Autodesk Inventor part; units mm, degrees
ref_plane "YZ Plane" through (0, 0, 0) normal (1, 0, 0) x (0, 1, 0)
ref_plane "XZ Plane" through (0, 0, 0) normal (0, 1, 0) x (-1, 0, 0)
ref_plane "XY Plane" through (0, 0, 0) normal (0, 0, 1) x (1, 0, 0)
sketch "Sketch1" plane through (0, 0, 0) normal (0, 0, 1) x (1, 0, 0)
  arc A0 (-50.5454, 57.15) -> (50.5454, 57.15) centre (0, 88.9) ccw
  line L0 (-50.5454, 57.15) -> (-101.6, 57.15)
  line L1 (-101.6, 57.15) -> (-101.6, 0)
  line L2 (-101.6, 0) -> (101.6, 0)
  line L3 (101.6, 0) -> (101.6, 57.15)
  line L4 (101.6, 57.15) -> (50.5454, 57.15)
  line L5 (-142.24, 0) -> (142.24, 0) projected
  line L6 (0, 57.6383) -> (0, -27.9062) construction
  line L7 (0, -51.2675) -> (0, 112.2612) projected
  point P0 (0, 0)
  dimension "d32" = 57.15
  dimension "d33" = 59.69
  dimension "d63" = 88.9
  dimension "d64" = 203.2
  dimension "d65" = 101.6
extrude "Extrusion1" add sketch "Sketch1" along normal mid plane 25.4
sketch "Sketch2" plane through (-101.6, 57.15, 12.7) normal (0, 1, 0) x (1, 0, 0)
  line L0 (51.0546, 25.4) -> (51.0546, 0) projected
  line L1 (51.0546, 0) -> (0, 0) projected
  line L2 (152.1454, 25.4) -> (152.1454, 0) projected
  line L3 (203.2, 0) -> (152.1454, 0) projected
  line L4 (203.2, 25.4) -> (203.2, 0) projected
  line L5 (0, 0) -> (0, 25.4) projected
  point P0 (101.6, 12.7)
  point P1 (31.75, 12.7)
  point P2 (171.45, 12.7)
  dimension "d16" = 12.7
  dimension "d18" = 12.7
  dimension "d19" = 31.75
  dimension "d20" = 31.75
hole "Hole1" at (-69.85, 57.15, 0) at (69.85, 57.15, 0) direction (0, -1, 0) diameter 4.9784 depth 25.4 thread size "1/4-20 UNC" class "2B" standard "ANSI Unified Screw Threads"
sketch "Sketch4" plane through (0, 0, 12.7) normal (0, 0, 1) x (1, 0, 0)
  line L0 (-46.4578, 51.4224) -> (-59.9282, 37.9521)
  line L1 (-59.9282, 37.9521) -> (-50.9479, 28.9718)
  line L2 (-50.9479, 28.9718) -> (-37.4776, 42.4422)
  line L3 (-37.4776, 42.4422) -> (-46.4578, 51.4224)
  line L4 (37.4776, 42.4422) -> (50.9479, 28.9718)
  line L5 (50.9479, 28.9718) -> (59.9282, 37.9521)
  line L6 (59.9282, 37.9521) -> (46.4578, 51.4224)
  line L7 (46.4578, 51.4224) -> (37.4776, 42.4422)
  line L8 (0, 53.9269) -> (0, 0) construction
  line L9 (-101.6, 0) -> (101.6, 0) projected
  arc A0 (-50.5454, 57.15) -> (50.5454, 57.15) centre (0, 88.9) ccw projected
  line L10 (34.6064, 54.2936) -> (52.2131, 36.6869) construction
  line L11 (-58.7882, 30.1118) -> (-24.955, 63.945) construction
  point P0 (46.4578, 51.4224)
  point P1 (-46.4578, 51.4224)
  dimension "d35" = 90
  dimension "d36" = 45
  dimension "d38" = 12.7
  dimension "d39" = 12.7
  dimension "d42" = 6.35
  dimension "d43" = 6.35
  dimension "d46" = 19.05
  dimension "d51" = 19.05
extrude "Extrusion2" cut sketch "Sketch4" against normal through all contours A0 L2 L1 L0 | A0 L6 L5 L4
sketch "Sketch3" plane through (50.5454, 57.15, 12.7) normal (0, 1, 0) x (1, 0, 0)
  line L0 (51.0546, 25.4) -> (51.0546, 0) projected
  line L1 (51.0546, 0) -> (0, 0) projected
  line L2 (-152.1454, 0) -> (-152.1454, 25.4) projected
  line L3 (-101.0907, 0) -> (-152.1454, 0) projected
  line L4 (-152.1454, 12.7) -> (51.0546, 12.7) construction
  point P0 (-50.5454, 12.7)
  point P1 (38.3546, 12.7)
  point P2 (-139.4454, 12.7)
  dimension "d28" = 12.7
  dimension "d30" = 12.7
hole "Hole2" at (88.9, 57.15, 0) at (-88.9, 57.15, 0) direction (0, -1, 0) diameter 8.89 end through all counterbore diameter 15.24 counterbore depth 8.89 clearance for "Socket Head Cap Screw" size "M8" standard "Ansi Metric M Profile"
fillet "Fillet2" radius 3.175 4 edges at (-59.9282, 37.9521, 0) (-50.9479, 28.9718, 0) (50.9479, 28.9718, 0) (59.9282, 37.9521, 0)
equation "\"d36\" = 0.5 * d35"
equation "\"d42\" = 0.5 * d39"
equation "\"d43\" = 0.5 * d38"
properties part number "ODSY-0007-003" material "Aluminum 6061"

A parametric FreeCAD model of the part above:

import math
import FreeCAD as App
import Part
import Sketcher
from FreeCAD import Vector
Q = App.Units.Quantity


def edges_at(feature, points):
    """Names of the edges that pass closest to the given points."""
    edges = feature.Shape.Edges
    near = lambda p: min(range(len(edges)), key=lambda i: edges[i].distToShape(Part.Vertex(*p))[0])
    return sorted({f"Edge{near(p) + 1}" for p in points})

doc = App.newDocument("Part")
body = doc.addObject("PartDesign::Body", "Body")

sketch1 = body.newObject("Sketcher::SketchObject", "Sketch")
sketch1.AttachmentSupport = (doc.getObject("XY_Plane"), [""])
sketch1.MapMode = "FlatFace"
sketch1.addGeometry([
    Part.LineSegment(Vector(-50.5454, 57.15, 0), Vector(-101.6, 57.15, 0)),
    Part.LineSegment(Vector(-101.6, 57.15, 0), Vector(-101.6, 0, 0)),
    Part.LineSegment(Vector(-101.6, 0, 0), Vector(101.6, 0, 0)),
    Part.LineSegment(Vector(101.6, 0, 0), Vector(101.6, 57.15, 0)),
    Part.LineSegment(Vector(101.6, 57.15, 0), Vector(50.5454, 57.15, 0)),
    Part.ArcOfCircle(Part.Circle(Vector(0, 88.9, 0), Vector(0, 0, 1), 59.690032), math.radians(-147.865091), math.radians(-32.134909)),
], False)
sketch1.addConstraint([
    Sketcher.Constraint("Coincident", 0, 2, 1, 1),
    Sketcher.Constraint("Coincident", 1, 2, 2, 1),
    Sketcher.Constraint("Coincident", 2, 2, 3, 1),
    Sketcher.Constraint("Coincident", 3, 2, 4, 1),
    Sketcher.Constraint("Coincident", 4, 2, 5, 2),
    Sketcher.Constraint("Coincident", 5, 1, 0, 1),
    Sketcher.Constraint("Horizontal", 0),
    Sketcher.Constraint("Vertical", 1),
    Sketcher.Constraint("Horizontal", 2),
    Sketcher.Constraint("Vertical", 3),
    Sketcher.Constraint("Horizontal", 4),
    Sketcher.Constraint("Symmetric", 1, 2, 2, 2, -1, 1),
    Sketcher.Constraint("Symmetric", 4, 2, 5, 1, -2),
    Sketcher.Constraint("DistanceX", 2, 1, 2, 2, Q("8 in")),
    Sketcher.Constraint("Radius", 5, Q("2.35 in")),
    Sketcher.Constraint("DistanceY", 1, 2, 1, 1, Q("2.25 in")),
    Sketcher.Constraint("DistanceY", -1, 1, 5, 3, Q("3.5 in")),
])
pad1 = body.newObject("PartDesign::Pad", "Pad")
pad1.Profile = sketch1
pad1.Length = Q("1 in")
pad1.Midplane = True

sketch2 = body.newObject("Sketcher::SketchObject", "Sketch001")
sketch2.AttachmentSupport = (doc.getObject("XZ_Plane"), [""])
sketch2.MapMode = "FlatFace"
sketch2.AttachmentOffset = App.Placement(Vector(0, 0, -2.25 * 25.4), App.Rotation())
sketch2.addGeometry([
    Part.Circle(Vector(-69.85, 0, 0), Vector(0, 0, 1), 2.4892),
    Part.Circle(Vector(69.85, 0, 0), Vector(0, 0, 1), 2.4892),
], False)
sketch2.addConstraint([
    Sketcher.Constraint("Equal", 0, 1),
    Sketcher.Constraint("Symmetric", 0, 3, 1, 3, -1, 1),
    Sketcher.Constraint("PointOnObject", 0, 3, -1),
    Sketcher.Constraint("Diameter", 0, Q("0.196 in")),
    Sketcher.Constraint("DistanceX", 0, 3, 1, 3, Q("5.5 in")),
])
doc.recompute()
hole = body.newObject("PartDesign::Hole", "Hole")
hole.Profile = sketch2
hole.ThreadType = "None"
hole.Diameter = Q("0.196 in")
hole.DepthType = "Dimension"
hole.Depth = Q("1 in")
hole.DrillPoint = "Flat"
hole.Reversed = True

sketch3 = body.newObject("Sketcher::SketchObject", "Sketch002")
sketch3.AttachmentSupport = (doc.getObject("XY_Plane"), [""])
sketch3.MapMode = "FlatFace"
sketch3.AttachmentOffset = App.Placement(Vector(0, 0, 0.5 * 25.4), App.Rotation())
sketch3.addGeometry([
    Part.ArcOfCircle(Part.Circle(Vector(0, 88.9, 0), Vector(0, 0, 1), 59.690032), math.radians(-141.106812), math.radians(-128.893188)),
    Part.LineSegment(Vector(-46.4578, 51.4224, 0), Vector(-59.9282, 37.9521, 0)),
    Part.LineSegment(Vector(-59.9282, 37.9521, 0), Vector(-50.9479, 28.9718, 0)),
    Part.LineSegment(Vector(-50.9479, 28.9718, 0), Vector(-37.4776, 42.4422, 0)),
    Part.ArcOfCircle(Part.Circle(Vector(0, 88.9, 0), Vector(0, 0, 1), 59.690032), math.radians(-51.106812), math.radians(-38.893188)),
    Part.LineSegment(Vector(37.4776, 42.4422, 0), Vector(50.9479, 28.9718, 0)),
    Part.LineSegment(Vector(50.9479, 28.9718, 0), Vector(59.9282, 37.9521, 0)),
    Part.LineSegment(Vector(59.9282, 37.9521, 0), Vector(46.4578, 51.4224, 0)),
], False)
sketch3.addConstraint([
    Sketcher.Constraint("Coincident", 0, 1, 1, 1),
    Sketcher.Constraint("Coincident", 1, 2, 2, 1),
    Sketcher.Constraint("Coincident", 2, 2, 3, 1),
    Sketcher.Constraint("Coincident", 3, 2, 0, 2),
    Sketcher.Constraint("Coincident", 4, 1, 5, 1),
    Sketcher.Constraint("Coincident", 5, 2, 6, 1),
    Sketcher.Constraint("Coincident", 6, 2, 7, 1),
    Sketcher.Constraint("Coincident", 7, 2, 4, 2),
    Sketcher.Constraint("Coincident", 4, 3, 0, 3),
    Sketcher.Constraint("Equal", 0, 4),
    Sketcher.Constraint("Symmetric", 3, 2, 4, 1, -2),
    Sketcher.Constraint("Symmetric", 2, 2, 5, 2, -2),
    Sketcher.Constraint("Symmetric", 1, 2, 6, 2, -2),
    Sketcher.Constraint("Perpendicular", 1, 2),
    Sketcher.Constraint("Perpendicular", 2, 3),
    Sketcher.Constraint("Perpendicular", 3, 5),
    Sketcher.Constraint("Perpendicular", 6, 7),
    Sketcher.Constraint("Equal", 1, 3),
    Sketcher.Constraint("Distance", 2, Q("0.5 in")),
    Sketcher.Constraint("Distance", 1, Q("0.75 in")),
    Sketcher.Constraint("Radius", 0, Q("2.35 in")),
    Sketcher.Constraint("DistanceY", -1, 1, 0, 3, Q("3.5 in")),
])
pocket1 = body.newObject("PartDesign::Pocket", "Pocket")
pocket1.Profile = sketch3
pocket1.Type = "ThroughAll"

sketch4 = body.newObject("Sketcher::SketchObject", "Sketch003")
sketch4.AttachmentSupport = (doc.getObject("XZ_Plane"), [""])
sketch4.MapMode = "FlatFace"
sketch4.AttachmentOffset = App.Placement(Vector(0, 0, -2.25 * 25.4), App.Rotation())
sketch4.addGeometry([
    Part.Circle(Vector(88.9, 0, 0), Vector(0, 0, 1), 4.445),
    Part.Circle(Vector(-88.9, 0, 0), Vector(0, 0, 1), 4.445),
], False)
sketch4.addConstraint([
    Sketcher.Constraint("Equal", 0, 1),
    Sketcher.Constraint("Symmetric", 0, 3, 1, 3, -1, 1),
    Sketcher.Constraint("PointOnObject", 0, 3, -1),
    Sketcher.Constraint("Diameter", 0, Q("0.35 in")),
    Sketcher.Constraint("DistanceX", 1, 3, 0, 3, Q("7 in")),
])
doc.recompute()
hole2 = body.newObject("PartDesign::Hole", "Hole001")
hole2.Profile = sketch4
hole2.ThreadType = "None"
hole2.Diameter = Q("0.35 in")
hole2.DepthType = "ThroughAll"
hole2.HoleCutType = "Counterbore"
hole2.HoleCutDiameter = Q("0.6 in")
hole2.HoleCutDepth = Q("0.35 in")
hole2.Reversed = True
doc.recompute()

fillet = body.newObject("PartDesign::Fillet", "Fillet")
fillet.Base = (hole2, edges_at(hole2, [
    (-59.928, 37.952, 0),
    (-50.948, 28.972, 0),
    (50.948, 28.972, 0),
    (59.928, 37.952, 0),
]))
fillet.Radius = Q("0.125 in")

doc.recompute()
